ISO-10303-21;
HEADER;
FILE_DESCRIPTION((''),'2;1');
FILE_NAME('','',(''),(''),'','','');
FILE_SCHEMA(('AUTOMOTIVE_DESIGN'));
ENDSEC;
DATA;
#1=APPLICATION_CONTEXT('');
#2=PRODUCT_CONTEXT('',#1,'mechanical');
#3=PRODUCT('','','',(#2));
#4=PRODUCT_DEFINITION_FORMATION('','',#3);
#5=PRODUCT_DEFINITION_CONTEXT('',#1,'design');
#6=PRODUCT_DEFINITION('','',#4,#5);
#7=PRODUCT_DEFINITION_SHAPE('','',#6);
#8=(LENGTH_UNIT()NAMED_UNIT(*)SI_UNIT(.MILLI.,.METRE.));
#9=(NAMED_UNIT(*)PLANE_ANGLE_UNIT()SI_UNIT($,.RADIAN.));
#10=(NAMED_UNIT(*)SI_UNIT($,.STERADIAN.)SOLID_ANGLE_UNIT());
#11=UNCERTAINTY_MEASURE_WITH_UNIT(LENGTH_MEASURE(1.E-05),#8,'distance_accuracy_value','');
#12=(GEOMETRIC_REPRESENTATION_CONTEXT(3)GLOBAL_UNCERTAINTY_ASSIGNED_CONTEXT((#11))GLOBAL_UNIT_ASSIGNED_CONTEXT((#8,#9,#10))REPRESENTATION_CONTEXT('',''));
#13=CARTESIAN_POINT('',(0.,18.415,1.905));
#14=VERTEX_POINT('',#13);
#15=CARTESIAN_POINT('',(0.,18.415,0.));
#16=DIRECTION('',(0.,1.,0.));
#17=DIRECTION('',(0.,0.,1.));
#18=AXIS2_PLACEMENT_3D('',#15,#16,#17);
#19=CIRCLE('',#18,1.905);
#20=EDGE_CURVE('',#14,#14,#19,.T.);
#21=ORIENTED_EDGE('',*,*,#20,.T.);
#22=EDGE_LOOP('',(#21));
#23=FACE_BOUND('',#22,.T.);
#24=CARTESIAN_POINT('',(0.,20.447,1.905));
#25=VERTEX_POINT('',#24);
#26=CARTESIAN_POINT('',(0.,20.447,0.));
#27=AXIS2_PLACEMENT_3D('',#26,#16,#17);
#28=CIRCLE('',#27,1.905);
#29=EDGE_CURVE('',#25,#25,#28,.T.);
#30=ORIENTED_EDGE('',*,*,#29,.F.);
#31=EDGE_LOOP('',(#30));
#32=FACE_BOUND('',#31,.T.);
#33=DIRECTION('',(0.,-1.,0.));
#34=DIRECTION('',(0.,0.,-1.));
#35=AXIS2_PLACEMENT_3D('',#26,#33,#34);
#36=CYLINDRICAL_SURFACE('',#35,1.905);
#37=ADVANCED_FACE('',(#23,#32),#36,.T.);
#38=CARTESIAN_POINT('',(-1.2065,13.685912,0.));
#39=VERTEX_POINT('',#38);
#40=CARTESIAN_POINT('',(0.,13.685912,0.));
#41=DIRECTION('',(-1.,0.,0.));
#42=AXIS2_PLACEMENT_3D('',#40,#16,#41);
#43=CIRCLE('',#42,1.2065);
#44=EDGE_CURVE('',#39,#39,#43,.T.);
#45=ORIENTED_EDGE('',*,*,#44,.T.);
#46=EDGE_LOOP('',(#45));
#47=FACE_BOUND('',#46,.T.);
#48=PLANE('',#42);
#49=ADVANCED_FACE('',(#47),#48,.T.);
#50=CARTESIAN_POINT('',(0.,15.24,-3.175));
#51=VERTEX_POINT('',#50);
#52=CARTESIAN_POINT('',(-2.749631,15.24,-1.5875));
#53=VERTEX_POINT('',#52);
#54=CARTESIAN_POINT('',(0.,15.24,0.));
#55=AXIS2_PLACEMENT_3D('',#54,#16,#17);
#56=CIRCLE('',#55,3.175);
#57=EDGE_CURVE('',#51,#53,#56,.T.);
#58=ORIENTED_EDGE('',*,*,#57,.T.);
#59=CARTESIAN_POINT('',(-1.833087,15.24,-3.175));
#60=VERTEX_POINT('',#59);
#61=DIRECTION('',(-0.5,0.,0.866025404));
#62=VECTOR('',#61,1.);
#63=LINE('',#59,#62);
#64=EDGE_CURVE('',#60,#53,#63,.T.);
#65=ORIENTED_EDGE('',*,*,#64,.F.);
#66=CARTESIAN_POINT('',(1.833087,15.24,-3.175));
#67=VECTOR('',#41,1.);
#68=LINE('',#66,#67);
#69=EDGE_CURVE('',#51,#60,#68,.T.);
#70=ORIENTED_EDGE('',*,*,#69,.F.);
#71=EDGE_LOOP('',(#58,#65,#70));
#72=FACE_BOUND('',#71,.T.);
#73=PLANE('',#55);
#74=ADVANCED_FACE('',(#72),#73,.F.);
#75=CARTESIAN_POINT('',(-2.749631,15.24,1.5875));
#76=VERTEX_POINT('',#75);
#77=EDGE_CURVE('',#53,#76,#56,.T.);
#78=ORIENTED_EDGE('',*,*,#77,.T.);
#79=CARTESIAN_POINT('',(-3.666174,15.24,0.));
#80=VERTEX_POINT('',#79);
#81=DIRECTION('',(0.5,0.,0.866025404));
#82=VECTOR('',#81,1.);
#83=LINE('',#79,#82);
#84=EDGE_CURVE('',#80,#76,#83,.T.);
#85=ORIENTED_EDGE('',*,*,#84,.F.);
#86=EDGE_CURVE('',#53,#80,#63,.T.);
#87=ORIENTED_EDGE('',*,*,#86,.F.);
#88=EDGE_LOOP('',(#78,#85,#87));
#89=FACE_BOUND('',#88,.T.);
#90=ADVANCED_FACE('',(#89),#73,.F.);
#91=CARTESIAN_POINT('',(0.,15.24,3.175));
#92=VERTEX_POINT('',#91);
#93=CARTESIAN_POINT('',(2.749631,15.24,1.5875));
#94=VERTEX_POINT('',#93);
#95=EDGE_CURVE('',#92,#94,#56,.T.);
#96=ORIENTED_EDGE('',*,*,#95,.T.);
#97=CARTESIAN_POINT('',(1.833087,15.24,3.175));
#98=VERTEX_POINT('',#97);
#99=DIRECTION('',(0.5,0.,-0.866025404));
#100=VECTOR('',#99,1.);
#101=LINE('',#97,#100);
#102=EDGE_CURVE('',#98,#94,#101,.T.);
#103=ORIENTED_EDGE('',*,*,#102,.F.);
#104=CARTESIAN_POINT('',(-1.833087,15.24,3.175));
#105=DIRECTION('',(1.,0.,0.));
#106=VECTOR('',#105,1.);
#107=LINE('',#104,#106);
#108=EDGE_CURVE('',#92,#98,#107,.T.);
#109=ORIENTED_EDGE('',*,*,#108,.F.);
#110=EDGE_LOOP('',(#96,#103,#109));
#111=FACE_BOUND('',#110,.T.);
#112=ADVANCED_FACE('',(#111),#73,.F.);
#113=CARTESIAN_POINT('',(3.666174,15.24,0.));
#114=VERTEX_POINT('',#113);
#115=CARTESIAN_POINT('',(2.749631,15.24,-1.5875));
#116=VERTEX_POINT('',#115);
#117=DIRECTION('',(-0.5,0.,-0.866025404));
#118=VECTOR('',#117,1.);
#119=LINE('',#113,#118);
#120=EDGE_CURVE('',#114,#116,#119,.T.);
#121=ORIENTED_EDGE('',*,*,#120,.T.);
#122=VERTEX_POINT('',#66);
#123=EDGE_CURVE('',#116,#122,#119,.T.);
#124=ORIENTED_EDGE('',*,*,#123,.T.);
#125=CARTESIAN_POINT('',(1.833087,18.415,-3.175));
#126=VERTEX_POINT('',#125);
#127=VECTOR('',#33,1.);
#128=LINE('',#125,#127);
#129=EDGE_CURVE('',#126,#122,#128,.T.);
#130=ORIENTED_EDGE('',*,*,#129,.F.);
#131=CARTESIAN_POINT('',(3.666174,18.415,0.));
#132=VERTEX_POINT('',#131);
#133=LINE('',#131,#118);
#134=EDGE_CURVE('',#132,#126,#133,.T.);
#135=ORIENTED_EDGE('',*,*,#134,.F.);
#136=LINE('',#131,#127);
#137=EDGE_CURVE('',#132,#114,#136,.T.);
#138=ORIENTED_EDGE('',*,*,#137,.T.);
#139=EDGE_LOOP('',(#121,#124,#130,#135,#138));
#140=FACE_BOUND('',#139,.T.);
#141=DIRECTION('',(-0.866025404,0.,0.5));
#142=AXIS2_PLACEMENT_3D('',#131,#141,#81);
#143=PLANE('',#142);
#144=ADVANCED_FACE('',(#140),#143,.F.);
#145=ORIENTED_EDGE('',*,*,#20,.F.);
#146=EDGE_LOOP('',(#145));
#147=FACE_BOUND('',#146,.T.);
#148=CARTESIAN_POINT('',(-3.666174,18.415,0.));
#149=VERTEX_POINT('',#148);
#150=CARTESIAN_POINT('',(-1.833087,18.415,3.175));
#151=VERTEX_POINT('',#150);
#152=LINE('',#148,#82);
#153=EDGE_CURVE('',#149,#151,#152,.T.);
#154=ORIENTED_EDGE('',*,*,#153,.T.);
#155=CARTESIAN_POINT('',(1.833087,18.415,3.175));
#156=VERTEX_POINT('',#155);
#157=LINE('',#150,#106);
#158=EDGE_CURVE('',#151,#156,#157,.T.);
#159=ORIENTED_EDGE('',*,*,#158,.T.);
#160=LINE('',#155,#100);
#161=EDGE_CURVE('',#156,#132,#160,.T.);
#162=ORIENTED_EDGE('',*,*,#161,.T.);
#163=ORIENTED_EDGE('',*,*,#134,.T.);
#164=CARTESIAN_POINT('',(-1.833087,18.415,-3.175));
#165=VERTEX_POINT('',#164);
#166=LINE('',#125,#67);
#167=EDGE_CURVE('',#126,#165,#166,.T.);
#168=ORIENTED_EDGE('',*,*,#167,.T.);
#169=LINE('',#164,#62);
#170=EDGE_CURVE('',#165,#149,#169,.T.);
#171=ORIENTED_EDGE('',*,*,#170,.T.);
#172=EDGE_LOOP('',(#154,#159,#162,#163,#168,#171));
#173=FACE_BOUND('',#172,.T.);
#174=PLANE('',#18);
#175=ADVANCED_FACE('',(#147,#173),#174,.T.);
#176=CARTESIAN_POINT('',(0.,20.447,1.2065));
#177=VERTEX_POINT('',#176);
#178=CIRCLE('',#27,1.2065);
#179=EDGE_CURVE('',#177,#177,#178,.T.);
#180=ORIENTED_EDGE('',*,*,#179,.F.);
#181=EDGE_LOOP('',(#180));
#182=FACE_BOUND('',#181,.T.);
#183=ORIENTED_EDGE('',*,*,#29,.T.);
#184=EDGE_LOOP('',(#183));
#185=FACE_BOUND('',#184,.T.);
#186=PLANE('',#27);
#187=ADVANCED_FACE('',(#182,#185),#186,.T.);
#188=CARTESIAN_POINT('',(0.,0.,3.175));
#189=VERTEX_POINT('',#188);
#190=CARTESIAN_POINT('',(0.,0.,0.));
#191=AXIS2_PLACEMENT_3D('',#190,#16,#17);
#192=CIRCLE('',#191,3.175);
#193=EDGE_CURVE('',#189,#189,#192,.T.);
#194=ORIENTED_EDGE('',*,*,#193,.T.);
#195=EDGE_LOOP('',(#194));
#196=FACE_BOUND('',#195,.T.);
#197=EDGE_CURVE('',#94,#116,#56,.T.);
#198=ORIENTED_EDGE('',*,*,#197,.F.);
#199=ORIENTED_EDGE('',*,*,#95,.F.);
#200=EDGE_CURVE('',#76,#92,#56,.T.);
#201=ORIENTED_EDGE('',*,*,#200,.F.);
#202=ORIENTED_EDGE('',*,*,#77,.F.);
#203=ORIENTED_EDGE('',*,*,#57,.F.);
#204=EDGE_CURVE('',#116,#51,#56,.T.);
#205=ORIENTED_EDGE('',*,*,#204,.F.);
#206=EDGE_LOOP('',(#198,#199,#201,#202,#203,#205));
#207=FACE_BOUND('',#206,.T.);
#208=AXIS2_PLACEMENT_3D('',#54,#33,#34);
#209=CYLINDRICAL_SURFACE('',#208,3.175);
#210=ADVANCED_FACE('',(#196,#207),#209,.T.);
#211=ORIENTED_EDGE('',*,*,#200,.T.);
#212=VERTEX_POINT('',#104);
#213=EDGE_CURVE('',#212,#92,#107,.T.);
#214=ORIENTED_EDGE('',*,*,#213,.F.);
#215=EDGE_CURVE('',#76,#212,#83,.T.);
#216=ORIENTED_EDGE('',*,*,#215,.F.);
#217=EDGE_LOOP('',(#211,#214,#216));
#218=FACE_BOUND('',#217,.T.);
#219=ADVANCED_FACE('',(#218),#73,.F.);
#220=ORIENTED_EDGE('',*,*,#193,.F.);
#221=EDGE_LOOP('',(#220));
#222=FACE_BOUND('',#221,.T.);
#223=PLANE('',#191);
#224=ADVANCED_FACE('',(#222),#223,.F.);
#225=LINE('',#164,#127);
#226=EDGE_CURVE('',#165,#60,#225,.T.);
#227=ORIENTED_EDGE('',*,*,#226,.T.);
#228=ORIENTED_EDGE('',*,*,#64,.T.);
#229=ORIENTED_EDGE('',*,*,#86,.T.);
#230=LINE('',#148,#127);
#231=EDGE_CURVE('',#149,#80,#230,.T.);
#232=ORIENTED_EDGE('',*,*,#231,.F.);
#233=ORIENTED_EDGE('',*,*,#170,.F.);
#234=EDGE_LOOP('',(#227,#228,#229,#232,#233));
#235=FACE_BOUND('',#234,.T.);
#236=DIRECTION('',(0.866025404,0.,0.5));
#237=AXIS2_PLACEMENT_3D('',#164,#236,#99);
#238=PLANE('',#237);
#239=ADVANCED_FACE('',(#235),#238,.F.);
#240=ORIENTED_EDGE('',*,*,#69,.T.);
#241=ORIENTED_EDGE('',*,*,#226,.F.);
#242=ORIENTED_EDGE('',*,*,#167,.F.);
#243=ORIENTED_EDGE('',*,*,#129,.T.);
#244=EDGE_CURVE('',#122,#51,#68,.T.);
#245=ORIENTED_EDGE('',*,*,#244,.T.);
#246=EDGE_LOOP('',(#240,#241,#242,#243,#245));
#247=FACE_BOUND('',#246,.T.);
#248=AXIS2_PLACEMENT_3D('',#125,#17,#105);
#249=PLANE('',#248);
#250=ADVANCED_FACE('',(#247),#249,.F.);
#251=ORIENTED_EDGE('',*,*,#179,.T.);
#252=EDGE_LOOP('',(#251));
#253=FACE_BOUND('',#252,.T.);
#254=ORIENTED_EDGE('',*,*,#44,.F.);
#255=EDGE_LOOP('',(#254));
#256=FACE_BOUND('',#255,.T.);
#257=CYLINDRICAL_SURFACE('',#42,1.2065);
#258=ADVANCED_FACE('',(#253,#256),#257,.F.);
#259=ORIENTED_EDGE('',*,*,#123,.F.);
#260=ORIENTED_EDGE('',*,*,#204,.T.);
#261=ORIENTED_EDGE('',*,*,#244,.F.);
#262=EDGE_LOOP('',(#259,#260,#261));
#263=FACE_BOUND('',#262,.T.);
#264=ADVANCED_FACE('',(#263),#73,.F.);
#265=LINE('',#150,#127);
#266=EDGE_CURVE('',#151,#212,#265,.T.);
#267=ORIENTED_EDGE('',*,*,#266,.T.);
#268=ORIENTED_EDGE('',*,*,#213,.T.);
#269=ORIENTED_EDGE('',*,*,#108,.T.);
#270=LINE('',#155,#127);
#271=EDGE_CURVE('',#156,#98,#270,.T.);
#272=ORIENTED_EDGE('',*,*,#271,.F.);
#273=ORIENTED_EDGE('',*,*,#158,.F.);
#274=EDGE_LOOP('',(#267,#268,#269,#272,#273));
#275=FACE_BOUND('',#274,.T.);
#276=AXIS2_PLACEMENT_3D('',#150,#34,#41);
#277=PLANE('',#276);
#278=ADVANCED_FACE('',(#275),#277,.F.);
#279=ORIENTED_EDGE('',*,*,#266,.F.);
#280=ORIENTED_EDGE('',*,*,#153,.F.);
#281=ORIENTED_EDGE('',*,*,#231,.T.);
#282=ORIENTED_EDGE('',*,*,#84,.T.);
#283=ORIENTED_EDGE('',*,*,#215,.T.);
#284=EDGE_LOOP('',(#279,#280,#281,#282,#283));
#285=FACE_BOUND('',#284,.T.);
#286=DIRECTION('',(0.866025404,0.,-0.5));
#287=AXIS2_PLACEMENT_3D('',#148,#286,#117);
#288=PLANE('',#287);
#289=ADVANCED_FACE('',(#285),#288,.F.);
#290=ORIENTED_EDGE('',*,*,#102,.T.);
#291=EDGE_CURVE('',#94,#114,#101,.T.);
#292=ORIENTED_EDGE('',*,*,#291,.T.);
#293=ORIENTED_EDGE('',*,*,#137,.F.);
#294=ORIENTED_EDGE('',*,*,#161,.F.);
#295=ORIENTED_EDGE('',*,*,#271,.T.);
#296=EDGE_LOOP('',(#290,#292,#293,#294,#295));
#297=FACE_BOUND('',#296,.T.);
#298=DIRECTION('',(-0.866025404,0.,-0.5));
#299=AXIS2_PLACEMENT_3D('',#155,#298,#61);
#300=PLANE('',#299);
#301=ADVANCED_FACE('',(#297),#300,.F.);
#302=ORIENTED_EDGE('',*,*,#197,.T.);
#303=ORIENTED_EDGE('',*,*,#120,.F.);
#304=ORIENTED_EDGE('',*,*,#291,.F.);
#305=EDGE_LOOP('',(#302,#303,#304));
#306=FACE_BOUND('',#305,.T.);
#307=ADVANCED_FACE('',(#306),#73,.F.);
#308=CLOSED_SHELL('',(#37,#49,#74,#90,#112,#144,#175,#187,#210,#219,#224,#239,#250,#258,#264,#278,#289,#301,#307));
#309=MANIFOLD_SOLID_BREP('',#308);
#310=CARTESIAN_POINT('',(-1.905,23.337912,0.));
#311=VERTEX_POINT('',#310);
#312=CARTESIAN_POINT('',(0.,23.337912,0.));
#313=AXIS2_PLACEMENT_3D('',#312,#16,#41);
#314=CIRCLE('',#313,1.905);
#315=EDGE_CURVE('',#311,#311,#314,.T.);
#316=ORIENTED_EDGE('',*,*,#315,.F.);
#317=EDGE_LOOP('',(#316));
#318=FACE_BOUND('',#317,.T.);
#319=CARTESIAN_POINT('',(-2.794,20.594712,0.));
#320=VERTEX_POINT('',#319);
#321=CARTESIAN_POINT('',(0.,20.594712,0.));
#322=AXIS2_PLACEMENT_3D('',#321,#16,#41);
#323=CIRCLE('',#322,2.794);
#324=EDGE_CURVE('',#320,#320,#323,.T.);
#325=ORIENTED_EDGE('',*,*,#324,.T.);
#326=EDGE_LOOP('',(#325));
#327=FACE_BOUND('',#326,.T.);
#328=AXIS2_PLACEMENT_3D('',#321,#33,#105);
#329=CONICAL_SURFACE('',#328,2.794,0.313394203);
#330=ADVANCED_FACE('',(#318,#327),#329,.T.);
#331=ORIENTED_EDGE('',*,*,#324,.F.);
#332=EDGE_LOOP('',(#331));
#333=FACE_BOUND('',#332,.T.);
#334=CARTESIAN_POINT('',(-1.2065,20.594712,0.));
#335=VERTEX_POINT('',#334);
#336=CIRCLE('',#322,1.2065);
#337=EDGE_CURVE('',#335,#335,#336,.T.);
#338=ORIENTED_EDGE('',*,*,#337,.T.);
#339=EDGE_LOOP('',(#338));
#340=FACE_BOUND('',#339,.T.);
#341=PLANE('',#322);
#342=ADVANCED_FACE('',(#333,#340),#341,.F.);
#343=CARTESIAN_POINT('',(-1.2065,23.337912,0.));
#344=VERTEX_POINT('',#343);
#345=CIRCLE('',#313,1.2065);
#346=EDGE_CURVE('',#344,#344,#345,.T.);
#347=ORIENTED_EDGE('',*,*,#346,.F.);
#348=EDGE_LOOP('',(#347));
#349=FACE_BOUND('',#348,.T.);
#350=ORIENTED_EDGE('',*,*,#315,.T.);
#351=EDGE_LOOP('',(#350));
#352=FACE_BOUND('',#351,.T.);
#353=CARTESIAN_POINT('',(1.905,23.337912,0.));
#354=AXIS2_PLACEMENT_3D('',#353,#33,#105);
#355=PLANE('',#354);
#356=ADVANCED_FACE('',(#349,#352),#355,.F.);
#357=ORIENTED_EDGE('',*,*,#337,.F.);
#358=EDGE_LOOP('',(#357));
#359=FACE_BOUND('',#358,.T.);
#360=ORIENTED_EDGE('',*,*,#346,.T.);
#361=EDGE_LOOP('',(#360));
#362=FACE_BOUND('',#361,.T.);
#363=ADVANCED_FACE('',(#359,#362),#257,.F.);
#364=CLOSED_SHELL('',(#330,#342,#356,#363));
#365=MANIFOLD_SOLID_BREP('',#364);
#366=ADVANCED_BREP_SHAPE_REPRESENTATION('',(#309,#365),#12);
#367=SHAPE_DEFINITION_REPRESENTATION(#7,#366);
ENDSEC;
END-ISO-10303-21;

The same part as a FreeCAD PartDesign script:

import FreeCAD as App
import Part
import Sketcher
Q = App.Units.Quantity


def add_polygon(sketch, points):
    """Adds a closed chain of lines whose ends are joined by coincident constraints."""
    first, n = sketch.GeometryCount, len(points)
    for a, b in zip(points, points[1:] + points[:1]):
        sketch.addGeometry(Part.LineSegment(App.Vector(*a, 0), App.Vector(*b, 0)), False)
    for i in range(n):
        sketch.addConstraint(Sketcher.Constraint("Coincident", first + i, 2, first + (i + 1) % n, 1))

doc = App.newDocument("Part")
body = doc.addObject("PartDesign::Body", "Body")

sketch1 = doc.addObject("Sketcher::SketchObject", "Sketch")
body.addObject(sketch1)
sketch1.AttachmentSupport = (doc.XZ_Plane, [""])
sketch1.MapMode = "FlatFace"
sketch1.addGeometry(Part.Circle(App.Vector(0, 0, 0), App.Vector(0, 0, 1), 3.2), False)
sketch1.addConstraint([
    Sketcher.Constraint("Coincident", 0, 3, -1, 1),
    Sketcher.Constraint("Diameter", 0, Q("0.25 in")),
])
pad1 = doc.addObject("PartDesign::Pad", "Pad")
body.addObject(pad1)
pad1.Profile = sketch1
pad1.Length = Q("0.6 in")
pad1.Reversed = True

sketch2 = doc.addObject("Sketcher::SketchObject", "Sketch001")
body.addObject(sketch2)
sketch2.AttachmentSupport = (doc.XZ_Plane, [""])
sketch2.MapMode = "FlatFace"
sketch2.AttachmentOffset = App.Placement(App.Vector(0, 0, -0.6 * 25.4), App.Rotation())
add_polygon(sketch2, [(3.7, 0), (1.8, -3.2), (-1.8, -3.2), (-3.7, 0), (-1.8, 3.2), (1.8, 3.2)])
sketch2.addConstraint([
    Sketcher.Constraint("Horizontal", 1),
    Sketcher.Constraint("Horizontal", 4),
    Sketcher.Constraint("Symmetric", 0, 2, 3, 2, -1, 1),
    Sketcher.Constraint("Symmetric", 2, 2, 5, 2, -1, 1),
    Sketcher.Constraint("PointOnObject", 2, 2, -1),
    Sketcher.Constraint("Parallel", 2, 5),
    Sketcher.Constraint("Vertical", 1, 2, 3, 2),
    Sketcher.Constraint("Angle", 0, Q("-120 deg")),
    Sketcher.Constraint("DistanceY", 1, 2, 3, 2, Q("0.25 in")),
    Sketcher.Constraint("DistanceX", 1, 2, 1, 1, 3.666174),
])
pad2 = doc.addObject("PartDesign::Pad", "Pad001")
body.addObject(pad2)
pad2.Profile = sketch2
pad2.Length = Q("0.125 in")
pad2.Reversed = True

sketch3 = doc.addObject("Sketcher::SketchObject", "Sketch002")
body.addObject(sketch3)
sketch3.AttachmentSupport = (doc.XZ_Plane, [""])
sketch3.MapMode = "FlatFace"
sketch3.AttachmentOffset = App.Placement(App.Vector(0, 0, -0.725 * 25.4), App.Rotation())
sketch3.addGeometry(Part.Circle(App.Vector(0, 0, 0), App.Vector(0, 0, 1), 1.9), False)
sketch3.addConstraint([
    Sketcher.Constraint("Coincident", 0, 3, -1, 1),
    Sketcher.Constraint("Diameter", 0, Q("0.15 in")),
])
pad3 = doc.addObject("PartDesign::Pad", "Pad002")
body.addObject(pad3)
pad3.Profile = sketch3
pad3.Length = Q("0.08 in")
pad3.Reversed = True
body2 = doc.addObject("PartDesign::Body", "Body001")

sketch4 = doc.addObject("Sketcher::SketchObject", "Sketch003")
body2.addObject(sketch4)
sketch4.AttachmentSupport = (doc.getObject("XY_Plane001"), [""])
sketch4.MapMode = "FlatFace"
add_polygon(sketch4, [(0, 20.6), (2.8, 20.6), (1.9, 23.3), (0, 23.3)])
sketch4.addConstraint([
    Sketcher.Constraint("Horizontal", 0),
    Sketcher.Constraint("Horizontal", 2),
    Sketcher.Constraint("Vertical", 3),
    Sketcher.Constraint("PointOnObject", 2, 2, -2),
    Sketcher.Constraint("DistanceX", 0, 1, 0, 2, Q("0.11 in")),
    Sketcher.Constraint("DistanceX", 2, 2, 2, 1, Q("0.075 in")),
    Sketcher.Constraint("DistanceY", 3, 2, 3, 1, Q("0.108 in")),
    Sketcher.Constraint("DistanceY", -1, 1, 0, 2, 20.594712),
])
revolution = doc.addObject("PartDesign::Revolution", "Revolution")
body2.addObject(revolution)
revolution.Profile = sketch4
revolution.ReferenceAxis = (sketch4, ["V_Axis"])
revolution.Angle = 360
body3 = doc.addObject("PartDesign::Body", "Body002")

sketch5 = doc.addObject("Sketcher::SketchObject", "Sketch004")
body3.addObject(sketch5)
sketch5.AttachmentSupport = (doc.getObject("XZ_Plane002"), [""])
sketch5.MapMode = "FlatFace"
sketch5.AttachmentOffset = App.Placement(App.Vector(0, 0, -23.337912), App.Rotation())
sketch5.addGeometry(Part.Circle(App.Vector(0, 0, 0), App.Vector(0, 0, 1), 1.2), False)
sketch5.addConstraint([
    Sketcher.Constraint("Coincident", 0, 3, -1, 1),
    Sketcher.Constraint("Diameter", 0, Q("0.095 in")),
])
pad4 = doc.addObject("PartDesign::Pad", "Pad003")
body3.addObject(pad4)
pad4.Profile = sketch5
pad4.Length = Q("0.38 in")
doc.recompute()

body4 = doc.addObject("PartDesign::Body", "Body003")
body4.BaseFeature = body3
boolean = doc.addObject("PartDesign::Boolean", "Boolean")
body.addObject(boolean)
boolean.Type = "Cut"
boolean.addObjects([body4])
doc.recompute()

boolean2 = doc.addObject("PartDesign::Boolean", "Boolean001")
body2.addObject(boolean2)
boolean2.Type = "Cut"
boolean2.addObjects([body3])

doc.recompute()
